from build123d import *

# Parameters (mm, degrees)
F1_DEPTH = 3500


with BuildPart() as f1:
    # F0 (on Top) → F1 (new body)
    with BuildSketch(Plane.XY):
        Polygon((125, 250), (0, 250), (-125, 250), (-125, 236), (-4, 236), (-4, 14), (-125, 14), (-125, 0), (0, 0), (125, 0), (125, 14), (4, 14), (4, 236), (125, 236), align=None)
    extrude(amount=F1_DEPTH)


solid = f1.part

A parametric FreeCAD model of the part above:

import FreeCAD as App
import Part
import Sketcher
from FreeCAD import Vector
Q = App.Units.Quantity


def add_polygon(sketch, points):
    """Adds a closed chain of lines whose ends are joined by coincident constraints."""
    first, n = sketch.GeometryCount, len(points)
    for a, b in zip(points, points[1:] + points[:1]):
        sketch.addGeometry(Part.LineSegment(App.Vector(*a, 0), App.Vector(*b, 0)), False)
    for i in range(n):
        sketch.addConstraint(Sketcher.Constraint("Coincident", first + i, 2, first + (i + 1) % n, 1))

doc = App.newDocument("Part")
body = doc.addObject("PartDesign::Body", "Body")

# Sketch on XY plane
sketch1 = body.newObject("Sketcher::SketchObject", "Sketch")
sketch1.AttachmentSupport = (doc.getObject("XY_Plane"), [""])
sketch1.MapMode = "FlatFace"
add_polygon(sketch1, [(125, 250), (-125, 250), (-125, 236), (-4, 236), (-4, 14), (-125, 14), (-125, 0), (125, 0), (125, 14), (4, 14), (4, 236), (125, 236)])  # lines 0-11
sketch1.addConstraint([
    Sketcher.Constraint("Horizontal", 0),
    Sketcher.Constraint("Vertical", 1),
    Sketcher.Constraint("Horizontal", 2),
    Sketcher.Constraint("Vertical", 3),
    Sketcher.Constraint("Horizontal", 4),
    Sketcher.Constraint("Vertical", 5),
    Sketcher.Constraint("Horizontal", 6),
    Sketcher.Constraint("Vertical", 7),
    Sketcher.Constraint("Horizontal", 8),
    Sketcher.Constraint("Vertical", 9),
    Sketcher.Constraint("Horizontal", 10),
    Sketcher.Constraint("Vertical", 11),
    Sketcher.Constraint("Symmetric", 5, 2, 6, 2, -1, 1),
    Sketcher.Constraint("Symmetric", 3, 2, 8, 2, -2),
    Sketcher.Constraint("Symmetric", 1, 2, 10, 2, -2),
    Sketcher.Constraint("Vertical", 1, 2, 4, 2),
    Sketcher.Constraint("Equal", 1, 5),
    Sketcher.Constraint("DistanceX", 0, 2, 0, 1, Q("250 mm")),
    Sketcher.Constraint("DistanceX", 2, 1, 2, 2, Q("121 mm")),
    Sketcher.Constraint("DistanceY", 1, 2, 1, 1, Q("14 mm")),
    Sketcher.Constraint("DistanceY", 3, 2, 3, 1, Q("222 mm")),
])
pad1 = body.newObject("PartDesign::Pad", "Pad")
pad1.Profile = sketch1
pad1.Length = 3500

doc.recompute()
